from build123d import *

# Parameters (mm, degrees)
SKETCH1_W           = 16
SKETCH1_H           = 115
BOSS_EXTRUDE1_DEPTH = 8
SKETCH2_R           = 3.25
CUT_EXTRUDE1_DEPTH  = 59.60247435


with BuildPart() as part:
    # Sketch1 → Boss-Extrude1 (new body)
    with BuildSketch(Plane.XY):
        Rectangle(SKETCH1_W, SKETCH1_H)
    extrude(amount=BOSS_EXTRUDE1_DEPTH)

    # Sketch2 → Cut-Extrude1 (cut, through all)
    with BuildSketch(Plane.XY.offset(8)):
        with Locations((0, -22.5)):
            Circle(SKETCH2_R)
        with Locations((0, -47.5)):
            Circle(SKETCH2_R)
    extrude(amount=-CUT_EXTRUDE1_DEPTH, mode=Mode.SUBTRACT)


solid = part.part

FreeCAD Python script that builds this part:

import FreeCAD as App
import Part
import Sketcher
from FreeCAD import Vector


def add_polygon(sketch, points):
    """Adds a closed chain of lines whose ends are joined by coincident constraints."""
    first, n = sketch.GeometryCount, len(points)
    for a, b in zip(points, points[1:] + points[:1]):
        sketch.addGeometry(Part.LineSegment(App.Vector(*a, 0), App.Vector(*b, 0)), False)
    for i in range(n):
        sketch.addConstraint(Sketcher.Constraint("Coincident", first + i, 2, first + (i + 1) % n, 1))

doc = App.newDocument("Part")
body = doc.addObject("PartDesign::Body", "Body")

# Sketch on XY plane
sketch1 = doc.addObject("Sketcher::SketchObject", "Sketch")
body.addObject(sketch1)
sketch1.AttachmentSupport = (doc.XY_Plane, [""])
sketch1.MapMode = "FlatFace"
add_polygon(sketch1, [(-8, 58), (-8, -58), (8, -58), (8, 58)])  # lines 0-3
sketch1.addConstraint(Sketcher.Constraint("Vertical", 0))
sketch1.addConstraint(Sketcher.Constraint("Horizontal", 1))
sketch1.addConstraint(Sketcher.Constraint("Vertical", 2))
sketch1.addConstraint(Sketcher.Constraint("Horizontal", 3))
sketch1.addConstraint(Sketcher.Constraint("Symmetric", 0, 2, 2, 2, -1, 1))
sketch1.addConstraint(Sketcher.Constraint("DistanceX", 1, 1, 1, 2, 16.0))
sketch1.addConstraint(Sketcher.Constraint("DistanceY", 0, 2, 0, 1, 115.0))
pad1 = doc.addObject("PartDesign::Pad", "Pad")
body.addObject(pad1)
pad1.Profile = sketch1
pad1.Length = 8

# Sketch on XY plane
sketch2 = doc.addObject("Sketcher::SketchObject", "Sketch001")
body.addObject(sketch2)
sketch2.AttachmentSupport = (doc.XY_Plane, [""])
sketch2.MapMode = "FlatFace"
sketch2.AttachmentOffset = App.Placement(Vector(0, 0, 8), App.Rotation())
sketch2.addGeometry(Part.Circle(Vector(0, -22.5, 0), Vector(0, 0, 1), 3.2), False)
sketch2.addGeometry(Part.Circle(Vector(0, -47.5, 0), Vector(0, 0, 1), 3.2), False)
sketch2.addConstraint(Sketcher.Constraint("Equal", 0, 1))
sketch2.addConstraint(Sketcher.Constraint("PointOnObject", 0, 3, -2))
sketch2.addConstraint(Sketcher.Constraint("PointOnObject", 1, 3, -2))
sketch2.addConstraint(Sketcher.Constraint("Diameter", 0, 6.5))
sketch2.addConstraint(Sketcher.Constraint("DistanceY", 1, 3, 0, 3, 25.0))
sketch2.addConstraint(Sketcher.Constraint("DistanceY", 0, 3, -1, 1, 22.5))
pocket1 = doc.addObject("PartDesign::Pocket", "Pocket")
body.addObject(pocket1)
pocket1.Profile = sketch2
pocket1.Type = "ThroughAll"

doc.recompute()
